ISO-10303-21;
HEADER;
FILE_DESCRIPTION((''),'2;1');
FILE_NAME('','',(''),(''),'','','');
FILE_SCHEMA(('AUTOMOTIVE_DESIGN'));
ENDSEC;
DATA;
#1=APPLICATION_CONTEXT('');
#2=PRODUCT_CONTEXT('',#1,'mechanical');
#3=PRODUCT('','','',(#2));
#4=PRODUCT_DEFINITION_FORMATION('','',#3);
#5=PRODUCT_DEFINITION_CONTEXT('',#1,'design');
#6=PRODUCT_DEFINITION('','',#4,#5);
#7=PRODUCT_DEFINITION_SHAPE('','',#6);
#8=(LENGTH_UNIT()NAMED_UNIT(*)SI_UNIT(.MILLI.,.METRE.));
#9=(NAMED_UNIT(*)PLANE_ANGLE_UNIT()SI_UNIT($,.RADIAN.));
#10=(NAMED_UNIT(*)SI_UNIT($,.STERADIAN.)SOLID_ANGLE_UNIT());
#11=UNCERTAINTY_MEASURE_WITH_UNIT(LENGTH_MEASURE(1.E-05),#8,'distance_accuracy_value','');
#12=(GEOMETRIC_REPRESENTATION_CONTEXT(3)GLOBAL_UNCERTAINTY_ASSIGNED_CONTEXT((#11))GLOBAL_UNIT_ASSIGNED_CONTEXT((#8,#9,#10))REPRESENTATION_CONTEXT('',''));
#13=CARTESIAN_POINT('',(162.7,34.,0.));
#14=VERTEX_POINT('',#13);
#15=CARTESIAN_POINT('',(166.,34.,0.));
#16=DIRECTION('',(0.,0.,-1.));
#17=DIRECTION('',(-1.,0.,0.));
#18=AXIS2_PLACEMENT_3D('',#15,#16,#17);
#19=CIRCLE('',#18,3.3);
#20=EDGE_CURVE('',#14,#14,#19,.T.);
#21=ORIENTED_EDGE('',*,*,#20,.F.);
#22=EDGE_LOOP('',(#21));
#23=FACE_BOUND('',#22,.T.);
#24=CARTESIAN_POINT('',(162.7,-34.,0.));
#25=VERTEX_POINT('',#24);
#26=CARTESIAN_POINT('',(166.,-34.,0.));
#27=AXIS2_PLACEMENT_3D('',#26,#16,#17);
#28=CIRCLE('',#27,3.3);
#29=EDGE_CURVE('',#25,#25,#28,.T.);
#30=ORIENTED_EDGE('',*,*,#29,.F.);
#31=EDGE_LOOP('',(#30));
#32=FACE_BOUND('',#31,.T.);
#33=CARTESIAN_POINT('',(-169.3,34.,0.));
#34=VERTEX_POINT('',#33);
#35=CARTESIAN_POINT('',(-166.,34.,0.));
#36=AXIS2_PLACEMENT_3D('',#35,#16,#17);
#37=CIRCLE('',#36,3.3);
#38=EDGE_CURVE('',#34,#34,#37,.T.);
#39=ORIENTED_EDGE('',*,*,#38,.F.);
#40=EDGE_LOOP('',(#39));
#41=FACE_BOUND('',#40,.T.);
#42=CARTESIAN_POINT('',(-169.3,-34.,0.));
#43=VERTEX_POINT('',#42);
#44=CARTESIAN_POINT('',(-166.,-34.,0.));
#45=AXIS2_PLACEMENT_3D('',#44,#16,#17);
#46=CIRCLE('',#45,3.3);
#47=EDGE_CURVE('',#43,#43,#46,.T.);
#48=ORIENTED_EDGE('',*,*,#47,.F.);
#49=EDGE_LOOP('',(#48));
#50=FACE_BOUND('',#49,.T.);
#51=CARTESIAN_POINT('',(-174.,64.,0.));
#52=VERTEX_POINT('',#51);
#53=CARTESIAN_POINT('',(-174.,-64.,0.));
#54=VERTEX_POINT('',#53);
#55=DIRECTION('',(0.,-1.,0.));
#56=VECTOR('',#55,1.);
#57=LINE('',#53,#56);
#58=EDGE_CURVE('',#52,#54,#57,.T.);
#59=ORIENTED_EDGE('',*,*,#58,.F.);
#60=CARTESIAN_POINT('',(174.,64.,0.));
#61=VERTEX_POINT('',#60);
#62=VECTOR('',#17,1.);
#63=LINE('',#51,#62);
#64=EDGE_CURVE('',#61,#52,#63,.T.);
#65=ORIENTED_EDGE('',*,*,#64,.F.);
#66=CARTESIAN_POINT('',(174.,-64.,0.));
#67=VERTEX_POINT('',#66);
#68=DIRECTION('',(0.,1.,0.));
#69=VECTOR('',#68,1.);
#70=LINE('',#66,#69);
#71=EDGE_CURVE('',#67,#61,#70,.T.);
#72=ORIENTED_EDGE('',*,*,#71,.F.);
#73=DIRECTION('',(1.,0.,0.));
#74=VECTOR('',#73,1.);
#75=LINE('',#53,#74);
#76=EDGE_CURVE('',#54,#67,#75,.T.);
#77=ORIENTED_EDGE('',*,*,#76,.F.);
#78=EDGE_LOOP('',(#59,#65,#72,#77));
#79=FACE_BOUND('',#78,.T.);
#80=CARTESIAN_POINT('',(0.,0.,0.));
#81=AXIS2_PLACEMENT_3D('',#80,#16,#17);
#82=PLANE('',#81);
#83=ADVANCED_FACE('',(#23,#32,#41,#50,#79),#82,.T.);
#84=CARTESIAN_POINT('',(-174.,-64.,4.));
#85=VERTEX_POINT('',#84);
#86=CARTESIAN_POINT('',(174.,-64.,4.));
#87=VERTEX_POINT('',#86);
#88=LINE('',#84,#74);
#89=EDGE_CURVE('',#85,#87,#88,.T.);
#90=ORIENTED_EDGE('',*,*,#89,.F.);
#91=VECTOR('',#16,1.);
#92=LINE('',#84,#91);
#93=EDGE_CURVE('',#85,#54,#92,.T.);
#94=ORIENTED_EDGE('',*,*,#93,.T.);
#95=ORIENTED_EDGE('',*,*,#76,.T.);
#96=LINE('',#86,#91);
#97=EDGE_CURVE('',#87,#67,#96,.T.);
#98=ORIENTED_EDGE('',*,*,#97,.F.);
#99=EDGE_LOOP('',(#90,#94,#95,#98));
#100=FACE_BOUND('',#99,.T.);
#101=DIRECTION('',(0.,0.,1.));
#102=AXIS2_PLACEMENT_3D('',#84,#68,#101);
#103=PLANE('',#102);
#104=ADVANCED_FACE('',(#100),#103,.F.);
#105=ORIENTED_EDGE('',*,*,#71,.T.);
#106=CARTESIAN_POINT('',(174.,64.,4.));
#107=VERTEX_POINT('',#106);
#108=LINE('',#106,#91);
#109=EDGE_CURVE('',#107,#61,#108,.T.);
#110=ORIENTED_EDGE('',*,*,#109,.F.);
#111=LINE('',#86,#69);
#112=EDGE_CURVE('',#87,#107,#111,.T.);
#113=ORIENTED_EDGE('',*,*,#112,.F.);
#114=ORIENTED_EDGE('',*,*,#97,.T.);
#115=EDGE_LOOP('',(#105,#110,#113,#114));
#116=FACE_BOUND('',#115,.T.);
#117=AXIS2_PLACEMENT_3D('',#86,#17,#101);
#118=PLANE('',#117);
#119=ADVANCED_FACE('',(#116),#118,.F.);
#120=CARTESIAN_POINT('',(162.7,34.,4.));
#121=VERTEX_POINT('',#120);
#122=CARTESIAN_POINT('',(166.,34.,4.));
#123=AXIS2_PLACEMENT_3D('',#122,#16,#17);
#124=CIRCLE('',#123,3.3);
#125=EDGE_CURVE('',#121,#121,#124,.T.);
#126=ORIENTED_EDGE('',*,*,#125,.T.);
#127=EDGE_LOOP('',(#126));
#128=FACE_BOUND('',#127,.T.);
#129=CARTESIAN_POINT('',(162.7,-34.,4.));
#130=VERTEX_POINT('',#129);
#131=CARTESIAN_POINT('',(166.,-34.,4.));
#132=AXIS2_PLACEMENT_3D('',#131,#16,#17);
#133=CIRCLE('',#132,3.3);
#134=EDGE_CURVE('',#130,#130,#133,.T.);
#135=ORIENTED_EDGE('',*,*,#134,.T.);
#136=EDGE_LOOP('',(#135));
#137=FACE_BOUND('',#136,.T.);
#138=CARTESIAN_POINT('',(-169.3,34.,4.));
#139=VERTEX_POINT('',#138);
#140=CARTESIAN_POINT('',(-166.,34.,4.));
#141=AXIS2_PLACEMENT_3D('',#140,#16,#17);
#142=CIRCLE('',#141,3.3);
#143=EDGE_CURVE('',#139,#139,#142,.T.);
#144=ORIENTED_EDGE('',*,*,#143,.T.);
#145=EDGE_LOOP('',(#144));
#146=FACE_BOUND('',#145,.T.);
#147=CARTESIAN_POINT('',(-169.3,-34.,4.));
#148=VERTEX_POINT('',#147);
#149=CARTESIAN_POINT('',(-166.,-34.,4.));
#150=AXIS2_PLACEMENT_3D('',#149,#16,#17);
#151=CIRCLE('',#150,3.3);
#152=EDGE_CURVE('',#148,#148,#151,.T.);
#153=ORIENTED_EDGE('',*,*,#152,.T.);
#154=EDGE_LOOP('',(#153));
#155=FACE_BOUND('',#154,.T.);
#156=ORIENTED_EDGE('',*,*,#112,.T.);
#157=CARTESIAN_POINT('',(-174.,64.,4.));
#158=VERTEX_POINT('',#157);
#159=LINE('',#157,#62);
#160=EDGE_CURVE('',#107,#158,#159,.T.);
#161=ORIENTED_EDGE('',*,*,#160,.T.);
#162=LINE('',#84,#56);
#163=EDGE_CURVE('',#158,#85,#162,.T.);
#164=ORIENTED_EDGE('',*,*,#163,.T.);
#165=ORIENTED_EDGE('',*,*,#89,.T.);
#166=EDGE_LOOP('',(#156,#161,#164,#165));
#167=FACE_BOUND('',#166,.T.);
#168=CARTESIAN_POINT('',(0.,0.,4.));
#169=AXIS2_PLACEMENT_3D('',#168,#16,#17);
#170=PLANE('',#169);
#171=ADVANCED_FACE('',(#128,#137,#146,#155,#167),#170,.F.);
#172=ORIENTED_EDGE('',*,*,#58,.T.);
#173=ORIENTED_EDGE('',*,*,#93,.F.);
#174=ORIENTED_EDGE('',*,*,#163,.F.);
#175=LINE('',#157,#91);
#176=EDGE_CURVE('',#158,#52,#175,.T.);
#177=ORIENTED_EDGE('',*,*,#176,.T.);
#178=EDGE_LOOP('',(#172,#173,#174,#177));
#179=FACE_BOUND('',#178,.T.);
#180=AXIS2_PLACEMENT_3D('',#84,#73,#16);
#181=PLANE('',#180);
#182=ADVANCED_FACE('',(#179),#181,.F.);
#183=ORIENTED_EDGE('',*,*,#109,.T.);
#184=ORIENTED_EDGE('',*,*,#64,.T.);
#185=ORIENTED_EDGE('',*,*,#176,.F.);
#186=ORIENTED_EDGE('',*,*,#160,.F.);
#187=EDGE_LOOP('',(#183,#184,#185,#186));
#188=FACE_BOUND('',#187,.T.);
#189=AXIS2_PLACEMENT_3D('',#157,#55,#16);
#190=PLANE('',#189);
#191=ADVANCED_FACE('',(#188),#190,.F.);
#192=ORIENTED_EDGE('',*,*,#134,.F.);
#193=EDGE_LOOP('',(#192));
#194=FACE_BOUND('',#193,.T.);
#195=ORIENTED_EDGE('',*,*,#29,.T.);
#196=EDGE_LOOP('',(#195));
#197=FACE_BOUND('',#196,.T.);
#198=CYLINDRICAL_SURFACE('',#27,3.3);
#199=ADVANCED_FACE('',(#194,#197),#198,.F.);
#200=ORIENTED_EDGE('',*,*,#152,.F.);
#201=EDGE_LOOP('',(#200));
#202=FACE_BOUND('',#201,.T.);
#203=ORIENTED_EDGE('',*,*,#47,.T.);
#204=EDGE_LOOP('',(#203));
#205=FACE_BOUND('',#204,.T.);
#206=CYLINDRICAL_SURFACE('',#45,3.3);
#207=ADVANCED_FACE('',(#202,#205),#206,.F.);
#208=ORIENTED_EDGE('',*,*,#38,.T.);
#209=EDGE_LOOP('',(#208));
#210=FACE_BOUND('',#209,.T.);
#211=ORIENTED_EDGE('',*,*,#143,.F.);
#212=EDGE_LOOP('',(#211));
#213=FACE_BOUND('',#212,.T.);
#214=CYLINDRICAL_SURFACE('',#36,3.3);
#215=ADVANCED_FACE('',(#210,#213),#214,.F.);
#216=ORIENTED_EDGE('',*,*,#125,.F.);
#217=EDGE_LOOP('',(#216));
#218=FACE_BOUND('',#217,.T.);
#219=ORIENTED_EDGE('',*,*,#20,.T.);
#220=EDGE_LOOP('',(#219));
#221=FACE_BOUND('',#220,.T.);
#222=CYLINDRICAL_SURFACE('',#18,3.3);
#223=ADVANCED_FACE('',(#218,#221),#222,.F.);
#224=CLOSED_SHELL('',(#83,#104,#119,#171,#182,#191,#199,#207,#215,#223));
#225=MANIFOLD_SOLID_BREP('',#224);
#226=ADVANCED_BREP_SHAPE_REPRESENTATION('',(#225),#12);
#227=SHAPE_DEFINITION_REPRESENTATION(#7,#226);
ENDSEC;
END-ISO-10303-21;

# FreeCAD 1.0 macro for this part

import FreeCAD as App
import Part
import Sketcher

V = App.Vector

doc = App.newDocument("Part")
body = doc.addObject("PartDesign::Body", "Body")

# Sketch on XY plane
sketch1 = body.newObject("Sketcher::SketchObject", "Sketch")
sketch1.AttachmentSupport = (doc.getObject("XY_Plane"), [""])
sketch1.MapMode = "FlatFace"
sketch1.addGeometry([
    Part.LineSegment(V(-174, 64, 0), V(-174, -64, 0)),
    Part.LineSegment(V(-174, -64, 0), V(174, -64, 0)),
    Part.LineSegment(V(174, -64, 0), V(174, 64, 0)),
    Part.LineSegment(V(174, 64, 0), V(-174, 64, 0)),
], False)
sketch1.addConstraint([
    Sketcher.Constraint("Coincident", 0, 2, 1, 1),
    Sketcher.Constraint("Coincident", 1, 2, 2, 1),
    Sketcher.Constraint("Coincident", 2, 2, 3, 1),
    Sketcher.Constraint("Coincident", 3, 2, 0, 1),
    Sketcher.Constraint("Vertical", 0),
    Sketcher.Constraint("Horizontal", 1),
    Sketcher.Constraint("Vertical", 2),
    Sketcher.Constraint("Horizontal", 3),
    Sketcher.Constraint("Symmetric", 0, 2, 2, 2, -1, 1),
    Sketcher.Constraint("DistanceX", 1, 1, 1, 2, 348.0),
    Sketcher.Constraint("DistanceY", 0, 2, 0, 1, 128.0),
])
pad1 = body.newObject("PartDesign::Pad", "Pad")
pad1.Profile = sketch1
pad1.Length = 4

# Sketch on XY plane
sketch2 = body.newObject("Sketcher::SketchObject", "Sketch001")
sketch2.AttachmentSupport = (doc.getObject("XY_Plane"), [""])
sketch2.MapMode = "FlatFace"
sketch2.addGeometry([
    Part.Circle(V(-166, 34, 0), V(0, 0, 1), 3.3),
    Part.Circle(V(166, 34, 0), V(0, 0, 1), 3.3),
    Part.Circle(V(-166, -34, 0), V(0, 0, 1), 3.3),
    Part.Circle(V(166, -34, 0), V(0, 0, 1), 3.3),
], False)
sketch2.addConstraint([
    Sketcher.Constraint("Equal", 0, 1),
    Sketcher.Constraint("Equal", 1, 2),
    Sketcher.Constraint("Equal", 2, 3),
    Sketcher.Constraint("Symmetric", 1, 3, 2, 3, -1, 1),
    Sketcher.Constraint("Symmetric", 0, 3, 3, 3, -1, 1),
    Sketcher.Constraint("Symmetric", 0, 3, 1, 3, -2),
    Sketcher.Constraint("Diameter", 0, 6.6),
    Sketcher.Constraint("DistanceX", 0, 3, -1, 1, 166.0),
    Sketcher.Constraint("DistanceY", -1, 1, 0, 3, 34.0),
])
doc.recompute()
hole = body.newObject("PartDesign::Hole", "Hole")
hole.Profile = sketch2
hole.ThreadType = "None"
hole.Diameter = 6.6
hole.DepthType = "ThroughAll"
hole.Reversed = True

doc.recompute()
